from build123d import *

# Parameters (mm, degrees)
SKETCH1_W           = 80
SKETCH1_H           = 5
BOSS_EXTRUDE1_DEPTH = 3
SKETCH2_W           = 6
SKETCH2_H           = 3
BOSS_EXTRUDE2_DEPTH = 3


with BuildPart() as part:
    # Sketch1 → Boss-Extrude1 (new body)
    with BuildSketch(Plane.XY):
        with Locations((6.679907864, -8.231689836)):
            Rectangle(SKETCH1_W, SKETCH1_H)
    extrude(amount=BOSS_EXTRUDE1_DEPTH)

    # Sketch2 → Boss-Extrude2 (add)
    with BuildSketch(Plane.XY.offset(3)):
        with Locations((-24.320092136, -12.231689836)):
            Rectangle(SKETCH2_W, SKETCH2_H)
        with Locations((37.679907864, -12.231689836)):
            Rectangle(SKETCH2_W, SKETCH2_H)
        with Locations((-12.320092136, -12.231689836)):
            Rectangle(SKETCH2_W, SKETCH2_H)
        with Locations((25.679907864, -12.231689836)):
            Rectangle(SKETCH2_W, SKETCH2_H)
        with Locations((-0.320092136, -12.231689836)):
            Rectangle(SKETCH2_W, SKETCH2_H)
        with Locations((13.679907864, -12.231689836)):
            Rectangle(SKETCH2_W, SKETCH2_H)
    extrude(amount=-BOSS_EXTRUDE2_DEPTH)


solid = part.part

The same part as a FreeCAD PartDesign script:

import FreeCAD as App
import Part
import Sketcher

doc = App.newDocument("Part")
body = doc.addObject("PartDesign::Body", "Body")

# Sketch on XY plane
sketch1 = body.newObject("Sketcher::SketchObject", "Sketch")
sketch1.AttachmentSupport = (doc.getObject("XY_Plane"), [""])
sketch1.MapMode = "FlatFace"
sketch1.addGeometry([
    Part.LineSegment(App.Vector(-33.320092, -5.73169, 0), App.Vector(-33.320092, -10.73169, 0)),
    Part.LineSegment(App.Vector(-33.320092, -10.73169, 0), App.Vector(46.679908, -10.73169, 0)),
    Part.LineSegment(App.Vector(46.679908, -10.73169, 0), App.Vector(46.679908, -5.73169, 0)),
    Part.LineSegment(App.Vector(46.679908, -5.73169, 0), App.Vector(-33.320092, -5.73169, 0)),
], False)
sketch1.addConstraint([
    Sketcher.Constraint("Coincident", 0, 2, 1, 1),
    Sketcher.Constraint("Coincident", 1, 2, 2, 1),
    Sketcher.Constraint("Coincident", 2, 2, 3, 1),
    Sketcher.Constraint("Coincident", 3, 2, 0, 1),
    Sketcher.Constraint("Vertical", 0),
    Sketcher.Constraint("Horizontal", 1),
    Sketcher.Constraint("Vertical", 2),
    Sketcher.Constraint("Horizontal", 3),
    Sketcher.Constraint("DistanceX", 1, 1, 1, 2, 80.0),
    Sketcher.Constraint("DistanceY", 0, 2, 0, 1, 5.0),
    Sketcher.Constraint("DistanceY", 0, 2, -1, 1, 10.73169),
    Sketcher.Constraint("DistanceX", 0, 2, -1, 1, 33.320092),
])
pad1 = body.newObject("PartDesign::Pad", "Pad")
pad1.Profile = sketch1
pad1.Length = 3

# Sketch on XY plane
sketch2 = body.newObject("Sketcher::SketchObject", "Sketch001")
sketch2.AttachmentSupport = (doc.getObject("XY_Plane"), [""])
sketch2.MapMode = "FlatFace"
sketch2.AttachmentOffset = App.Placement(App.Vector(0, 0, 3), App.Rotation())
sketch2.addGeometry([
    Part.LineSegment(App.Vector(-27.320092, -10.73169, 0), App.Vector(-27.320092, -13.73169, 0)),  # 0
    Part.LineSegment(App.Vector(-27.320092, -13.73169, 0), App.Vector(-21.320092, -13.73169, 0)),  # 1
    Part.LineSegment(App.Vector(-21.320092, -13.73169, 0), App.Vector(-21.320092, -10.73169, 0)),  # 2
    Part.LineSegment(App.Vector(-21.320092, -10.73169, 0), App.Vector(-27.320092, -10.73169, 0)),  # 3
    Part.LineSegment(App.Vector(34.679908, -10.73169, 0), App.Vector(34.679908, -13.73169, 0)),  # 4
    Part.LineSegment(App.Vector(34.679908, -13.73169, 0), App.Vector(40.679908, -13.73169, 0)),  # 5
    Part.LineSegment(App.Vector(40.679908, -13.73169, 0), App.Vector(40.679908, -10.73169, 0)),  # 6
    Part.LineSegment(App.Vector(40.679908, -10.73169, 0), App.Vector(34.679908, -10.73169, 0)),  # 7
    Part.LineSegment(App.Vector(-15.320092, -10.73169, 0), App.Vector(-15.320092, -13.73169, 0)),  # 8
    Part.LineSegment(App.Vector(-15.320092, -13.73169, 0), App.Vector(-9.320092, -13.73169, 0)),  # 9
    Part.LineSegment(App.Vector(-9.320092, -13.73169, 0), App.Vector(-9.320092, -10.73169, 0)),  # 10
    Part.LineSegment(App.Vector(-9.320092, -10.73169, 0), App.Vector(-15.320092, -10.73169, 0)),  # 11
    Part.LineSegment(App.Vector(22.679908, -10.73169, 0), App.Vector(22.679908, -13.73169, 0)),  # 12
    Part.LineSegment(App.Vector(22.679908, -13.73169, 0), App.Vector(28.679908, -13.73169, 0)),  # 13
    Part.LineSegment(App.Vector(28.679908, -13.73169, 0), App.Vector(28.679908, -10.73169, 0)),  # 14
    Part.LineSegment(App.Vector(28.679908, -10.73169, 0), App.Vector(22.679908, -10.73169, 0)),  # 15
    Part.LineSegment(App.Vector(-3.320092, -10.73169, 0), App.Vector(-3.320092, -13.73169, 0)),  # 16
    Part.LineSegment(App.Vector(-3.320092, -13.73169, 0), App.Vector(2.679908, -13.73169, 0)),  # 17
    Part.LineSegment(App.Vector(2.679908, -13.73169, 0), App.Vector(2.679908, -10.73169, 0)),  # 18
    Part.LineSegment(App.Vector(2.679908, -10.73169, 0), App.Vector(-3.320092, -10.73169, 0)),  # 19
    Part.LineSegment(App.Vector(10.679908, -10.73169, 0), App.Vector(10.679908, -13.73169, 0)),  # 20
    Part.LineSegment(App.Vector(10.679908, -13.73169, 0), App.Vector(16.679908, -13.73169, 0)),  # 21
    Part.LineSegment(App.Vector(16.679908, -13.73169, 0), App.Vector(16.679908, -10.73169, 0)),  # 22
    Part.LineSegment(App.Vector(16.679908, -10.73169, 0), App.Vector(10.679908, -10.73169, 0)),  # 23
], False)
sketch2.addConstraint([
    Sketcher.Constraint("Coincident", 0, 2, 1, 1),
    Sketcher.Constraint("Coincident", 1, 2, 2, 1),
    Sketcher.Constraint("Coincident", 2, 2, 3, 1),
    Sketcher.Constraint("Coincident", 3, 2, 0, 1),
    Sketcher.Constraint("Coincident", 4, 2, 5, 1),
    Sketcher.Constraint("Coincident", 5, 2, 6, 1),
    Sketcher.Constraint("Coincident", 6, 2, 7, 1),
    Sketcher.Constraint("Coincident", 7, 2, 4, 1),
    Sketcher.Constraint("Coincident", 8, 2, 9, 1),
    Sketcher.Constraint("Coincident", 9, 2, 10, 1),
    Sketcher.Constraint("Coincident", 10, 2, 11, 1),
    Sketcher.Constraint("Coincident", 11, 2, 8, 1),
    Sketcher.Constraint("Coincident", 12, 2, 13, 1),
    Sketcher.Constraint("Coincident", 13, 2, 14, 1),
    Sketcher.Constraint("Coincident", 14, 2, 15, 1),
    Sketcher.Constraint("Coincident", 15, 2, 12, 1),
    Sketcher.Constraint("Coincident", 16, 2, 17, 1),
    Sketcher.Constraint("Coincident", 17, 2, 18, 1),
    Sketcher.Constraint("Coincident", 18, 2, 19, 1),
    Sketcher.Constraint("Coincident", 19, 2, 16, 1),
    Sketcher.Constraint("Coincident", 20, 2, 21, 1),
    Sketcher.Constraint("Coincident", 21, 2, 22, 1),
    Sketcher.Constraint("Coincident", 22, 2, 23, 1),
    Sketcher.Constraint("Coincident", 23, 2, 20, 1),
    Sketcher.Constraint("Vertical", 0),
    Sketcher.Constraint("Horizontal", 1),
    Sketcher.Constraint("Vertical", 2),
    Sketcher.Constraint("Horizontal", 3),
    Sketcher.Constraint("Vertical", 4),
    Sketcher.Constraint("Horizontal", 5),
    Sketcher.Constraint("Vertical", 6),
    Sketcher.Constraint("Horizontal", 7),
    Sketcher.Constraint("Vertical", 8),
    Sketcher.Constraint("Horizontal", 9),
    Sketcher.Constraint("Vertical", 10),
    Sketcher.Constraint("Horizontal", 11),
    Sketcher.Constraint("Vertical", 12),
    Sketcher.Constraint("Horizontal", 13),
    Sketcher.Constraint("Vertical", 14),
    Sketcher.Constraint("Horizontal", 15),
    Sketcher.Constraint("Vertical", 16),
    Sketcher.Constraint("Horizontal", 17),
    Sketcher.Constraint("Vertical", 18),
    Sketcher.Constraint("Horizontal", 19),
    Sketcher.Constraint("Vertical", 20),
    Sketcher.Constraint("Horizontal", 21),
    Sketcher.Constraint("Vertical", 22),
    Sketcher.Constraint("Horizontal", 23),
    Sketcher.Constraint("Horizontal", 1, 2, 4, 2),
    Sketcher.Constraint("Horizontal", 3, 2, 6, 2),
    Sketcher.Constraint("Horizontal", 5, 2, 8, 2),
    Sketcher.Constraint("Horizontal", 7, 2, 10, 2),
    Sketcher.Constraint("Horizontal", 9, 2, 12, 2),
    Sketcher.Constraint("Horizontal", 11, 2, 14, 2),
    Sketcher.Constraint("Horizontal", 13, 2, 16, 2),
    Sketcher.Constraint("Horizontal", 15, 2, 18, 2),
    Sketcher.Constraint("Horizontal", 17, 2, 20, 2),
    Sketcher.Constraint("Horizontal", 19, 2, 22, 2),
    Sketcher.Constraint("Equal", 3, 5),
    Sketcher.Constraint("Equal", 7, 9),
    Sketcher.Constraint("Equal", 11, 13),
    Sketcher.Constraint("Equal", 15, 17),
    Sketcher.Constraint("Equal", 19, 21),
    Sketcher.Constraint("DistanceX", 1, 1, 1, 2, 6.0),
    Sketcher.Constraint("DistanceY", 0, 2, 0, 1, 3.0),
    Sketcher.Constraint("DistanceX", 1, 2, 4, 2, 56.0),
    Sketcher.Constraint("DistanceX", 1, 2, 8, 2, 6.0),
    Sketcher.Constraint("DistanceX", 12, 2, 4, 2, 12.0),
    Sketcher.Constraint("DistanceX", 9, 2, 16, 2, 6.0),
    Sketcher.Constraint("DistanceX", 17, 2, 20, 2, 8.0),
    Sketcher.Constraint("DistanceY", 0, 2, -1, 1, 13.73169),
    Sketcher.Constraint("DistanceX", 0, 2, -1, 1, 27.320092),
])
pad2 = body.newObject("PartDesign::Pad", "Pad001")
pad2.Profile = sketch2
pad2.Length = 3
pad2.Reversed = True

doc.recompute()
